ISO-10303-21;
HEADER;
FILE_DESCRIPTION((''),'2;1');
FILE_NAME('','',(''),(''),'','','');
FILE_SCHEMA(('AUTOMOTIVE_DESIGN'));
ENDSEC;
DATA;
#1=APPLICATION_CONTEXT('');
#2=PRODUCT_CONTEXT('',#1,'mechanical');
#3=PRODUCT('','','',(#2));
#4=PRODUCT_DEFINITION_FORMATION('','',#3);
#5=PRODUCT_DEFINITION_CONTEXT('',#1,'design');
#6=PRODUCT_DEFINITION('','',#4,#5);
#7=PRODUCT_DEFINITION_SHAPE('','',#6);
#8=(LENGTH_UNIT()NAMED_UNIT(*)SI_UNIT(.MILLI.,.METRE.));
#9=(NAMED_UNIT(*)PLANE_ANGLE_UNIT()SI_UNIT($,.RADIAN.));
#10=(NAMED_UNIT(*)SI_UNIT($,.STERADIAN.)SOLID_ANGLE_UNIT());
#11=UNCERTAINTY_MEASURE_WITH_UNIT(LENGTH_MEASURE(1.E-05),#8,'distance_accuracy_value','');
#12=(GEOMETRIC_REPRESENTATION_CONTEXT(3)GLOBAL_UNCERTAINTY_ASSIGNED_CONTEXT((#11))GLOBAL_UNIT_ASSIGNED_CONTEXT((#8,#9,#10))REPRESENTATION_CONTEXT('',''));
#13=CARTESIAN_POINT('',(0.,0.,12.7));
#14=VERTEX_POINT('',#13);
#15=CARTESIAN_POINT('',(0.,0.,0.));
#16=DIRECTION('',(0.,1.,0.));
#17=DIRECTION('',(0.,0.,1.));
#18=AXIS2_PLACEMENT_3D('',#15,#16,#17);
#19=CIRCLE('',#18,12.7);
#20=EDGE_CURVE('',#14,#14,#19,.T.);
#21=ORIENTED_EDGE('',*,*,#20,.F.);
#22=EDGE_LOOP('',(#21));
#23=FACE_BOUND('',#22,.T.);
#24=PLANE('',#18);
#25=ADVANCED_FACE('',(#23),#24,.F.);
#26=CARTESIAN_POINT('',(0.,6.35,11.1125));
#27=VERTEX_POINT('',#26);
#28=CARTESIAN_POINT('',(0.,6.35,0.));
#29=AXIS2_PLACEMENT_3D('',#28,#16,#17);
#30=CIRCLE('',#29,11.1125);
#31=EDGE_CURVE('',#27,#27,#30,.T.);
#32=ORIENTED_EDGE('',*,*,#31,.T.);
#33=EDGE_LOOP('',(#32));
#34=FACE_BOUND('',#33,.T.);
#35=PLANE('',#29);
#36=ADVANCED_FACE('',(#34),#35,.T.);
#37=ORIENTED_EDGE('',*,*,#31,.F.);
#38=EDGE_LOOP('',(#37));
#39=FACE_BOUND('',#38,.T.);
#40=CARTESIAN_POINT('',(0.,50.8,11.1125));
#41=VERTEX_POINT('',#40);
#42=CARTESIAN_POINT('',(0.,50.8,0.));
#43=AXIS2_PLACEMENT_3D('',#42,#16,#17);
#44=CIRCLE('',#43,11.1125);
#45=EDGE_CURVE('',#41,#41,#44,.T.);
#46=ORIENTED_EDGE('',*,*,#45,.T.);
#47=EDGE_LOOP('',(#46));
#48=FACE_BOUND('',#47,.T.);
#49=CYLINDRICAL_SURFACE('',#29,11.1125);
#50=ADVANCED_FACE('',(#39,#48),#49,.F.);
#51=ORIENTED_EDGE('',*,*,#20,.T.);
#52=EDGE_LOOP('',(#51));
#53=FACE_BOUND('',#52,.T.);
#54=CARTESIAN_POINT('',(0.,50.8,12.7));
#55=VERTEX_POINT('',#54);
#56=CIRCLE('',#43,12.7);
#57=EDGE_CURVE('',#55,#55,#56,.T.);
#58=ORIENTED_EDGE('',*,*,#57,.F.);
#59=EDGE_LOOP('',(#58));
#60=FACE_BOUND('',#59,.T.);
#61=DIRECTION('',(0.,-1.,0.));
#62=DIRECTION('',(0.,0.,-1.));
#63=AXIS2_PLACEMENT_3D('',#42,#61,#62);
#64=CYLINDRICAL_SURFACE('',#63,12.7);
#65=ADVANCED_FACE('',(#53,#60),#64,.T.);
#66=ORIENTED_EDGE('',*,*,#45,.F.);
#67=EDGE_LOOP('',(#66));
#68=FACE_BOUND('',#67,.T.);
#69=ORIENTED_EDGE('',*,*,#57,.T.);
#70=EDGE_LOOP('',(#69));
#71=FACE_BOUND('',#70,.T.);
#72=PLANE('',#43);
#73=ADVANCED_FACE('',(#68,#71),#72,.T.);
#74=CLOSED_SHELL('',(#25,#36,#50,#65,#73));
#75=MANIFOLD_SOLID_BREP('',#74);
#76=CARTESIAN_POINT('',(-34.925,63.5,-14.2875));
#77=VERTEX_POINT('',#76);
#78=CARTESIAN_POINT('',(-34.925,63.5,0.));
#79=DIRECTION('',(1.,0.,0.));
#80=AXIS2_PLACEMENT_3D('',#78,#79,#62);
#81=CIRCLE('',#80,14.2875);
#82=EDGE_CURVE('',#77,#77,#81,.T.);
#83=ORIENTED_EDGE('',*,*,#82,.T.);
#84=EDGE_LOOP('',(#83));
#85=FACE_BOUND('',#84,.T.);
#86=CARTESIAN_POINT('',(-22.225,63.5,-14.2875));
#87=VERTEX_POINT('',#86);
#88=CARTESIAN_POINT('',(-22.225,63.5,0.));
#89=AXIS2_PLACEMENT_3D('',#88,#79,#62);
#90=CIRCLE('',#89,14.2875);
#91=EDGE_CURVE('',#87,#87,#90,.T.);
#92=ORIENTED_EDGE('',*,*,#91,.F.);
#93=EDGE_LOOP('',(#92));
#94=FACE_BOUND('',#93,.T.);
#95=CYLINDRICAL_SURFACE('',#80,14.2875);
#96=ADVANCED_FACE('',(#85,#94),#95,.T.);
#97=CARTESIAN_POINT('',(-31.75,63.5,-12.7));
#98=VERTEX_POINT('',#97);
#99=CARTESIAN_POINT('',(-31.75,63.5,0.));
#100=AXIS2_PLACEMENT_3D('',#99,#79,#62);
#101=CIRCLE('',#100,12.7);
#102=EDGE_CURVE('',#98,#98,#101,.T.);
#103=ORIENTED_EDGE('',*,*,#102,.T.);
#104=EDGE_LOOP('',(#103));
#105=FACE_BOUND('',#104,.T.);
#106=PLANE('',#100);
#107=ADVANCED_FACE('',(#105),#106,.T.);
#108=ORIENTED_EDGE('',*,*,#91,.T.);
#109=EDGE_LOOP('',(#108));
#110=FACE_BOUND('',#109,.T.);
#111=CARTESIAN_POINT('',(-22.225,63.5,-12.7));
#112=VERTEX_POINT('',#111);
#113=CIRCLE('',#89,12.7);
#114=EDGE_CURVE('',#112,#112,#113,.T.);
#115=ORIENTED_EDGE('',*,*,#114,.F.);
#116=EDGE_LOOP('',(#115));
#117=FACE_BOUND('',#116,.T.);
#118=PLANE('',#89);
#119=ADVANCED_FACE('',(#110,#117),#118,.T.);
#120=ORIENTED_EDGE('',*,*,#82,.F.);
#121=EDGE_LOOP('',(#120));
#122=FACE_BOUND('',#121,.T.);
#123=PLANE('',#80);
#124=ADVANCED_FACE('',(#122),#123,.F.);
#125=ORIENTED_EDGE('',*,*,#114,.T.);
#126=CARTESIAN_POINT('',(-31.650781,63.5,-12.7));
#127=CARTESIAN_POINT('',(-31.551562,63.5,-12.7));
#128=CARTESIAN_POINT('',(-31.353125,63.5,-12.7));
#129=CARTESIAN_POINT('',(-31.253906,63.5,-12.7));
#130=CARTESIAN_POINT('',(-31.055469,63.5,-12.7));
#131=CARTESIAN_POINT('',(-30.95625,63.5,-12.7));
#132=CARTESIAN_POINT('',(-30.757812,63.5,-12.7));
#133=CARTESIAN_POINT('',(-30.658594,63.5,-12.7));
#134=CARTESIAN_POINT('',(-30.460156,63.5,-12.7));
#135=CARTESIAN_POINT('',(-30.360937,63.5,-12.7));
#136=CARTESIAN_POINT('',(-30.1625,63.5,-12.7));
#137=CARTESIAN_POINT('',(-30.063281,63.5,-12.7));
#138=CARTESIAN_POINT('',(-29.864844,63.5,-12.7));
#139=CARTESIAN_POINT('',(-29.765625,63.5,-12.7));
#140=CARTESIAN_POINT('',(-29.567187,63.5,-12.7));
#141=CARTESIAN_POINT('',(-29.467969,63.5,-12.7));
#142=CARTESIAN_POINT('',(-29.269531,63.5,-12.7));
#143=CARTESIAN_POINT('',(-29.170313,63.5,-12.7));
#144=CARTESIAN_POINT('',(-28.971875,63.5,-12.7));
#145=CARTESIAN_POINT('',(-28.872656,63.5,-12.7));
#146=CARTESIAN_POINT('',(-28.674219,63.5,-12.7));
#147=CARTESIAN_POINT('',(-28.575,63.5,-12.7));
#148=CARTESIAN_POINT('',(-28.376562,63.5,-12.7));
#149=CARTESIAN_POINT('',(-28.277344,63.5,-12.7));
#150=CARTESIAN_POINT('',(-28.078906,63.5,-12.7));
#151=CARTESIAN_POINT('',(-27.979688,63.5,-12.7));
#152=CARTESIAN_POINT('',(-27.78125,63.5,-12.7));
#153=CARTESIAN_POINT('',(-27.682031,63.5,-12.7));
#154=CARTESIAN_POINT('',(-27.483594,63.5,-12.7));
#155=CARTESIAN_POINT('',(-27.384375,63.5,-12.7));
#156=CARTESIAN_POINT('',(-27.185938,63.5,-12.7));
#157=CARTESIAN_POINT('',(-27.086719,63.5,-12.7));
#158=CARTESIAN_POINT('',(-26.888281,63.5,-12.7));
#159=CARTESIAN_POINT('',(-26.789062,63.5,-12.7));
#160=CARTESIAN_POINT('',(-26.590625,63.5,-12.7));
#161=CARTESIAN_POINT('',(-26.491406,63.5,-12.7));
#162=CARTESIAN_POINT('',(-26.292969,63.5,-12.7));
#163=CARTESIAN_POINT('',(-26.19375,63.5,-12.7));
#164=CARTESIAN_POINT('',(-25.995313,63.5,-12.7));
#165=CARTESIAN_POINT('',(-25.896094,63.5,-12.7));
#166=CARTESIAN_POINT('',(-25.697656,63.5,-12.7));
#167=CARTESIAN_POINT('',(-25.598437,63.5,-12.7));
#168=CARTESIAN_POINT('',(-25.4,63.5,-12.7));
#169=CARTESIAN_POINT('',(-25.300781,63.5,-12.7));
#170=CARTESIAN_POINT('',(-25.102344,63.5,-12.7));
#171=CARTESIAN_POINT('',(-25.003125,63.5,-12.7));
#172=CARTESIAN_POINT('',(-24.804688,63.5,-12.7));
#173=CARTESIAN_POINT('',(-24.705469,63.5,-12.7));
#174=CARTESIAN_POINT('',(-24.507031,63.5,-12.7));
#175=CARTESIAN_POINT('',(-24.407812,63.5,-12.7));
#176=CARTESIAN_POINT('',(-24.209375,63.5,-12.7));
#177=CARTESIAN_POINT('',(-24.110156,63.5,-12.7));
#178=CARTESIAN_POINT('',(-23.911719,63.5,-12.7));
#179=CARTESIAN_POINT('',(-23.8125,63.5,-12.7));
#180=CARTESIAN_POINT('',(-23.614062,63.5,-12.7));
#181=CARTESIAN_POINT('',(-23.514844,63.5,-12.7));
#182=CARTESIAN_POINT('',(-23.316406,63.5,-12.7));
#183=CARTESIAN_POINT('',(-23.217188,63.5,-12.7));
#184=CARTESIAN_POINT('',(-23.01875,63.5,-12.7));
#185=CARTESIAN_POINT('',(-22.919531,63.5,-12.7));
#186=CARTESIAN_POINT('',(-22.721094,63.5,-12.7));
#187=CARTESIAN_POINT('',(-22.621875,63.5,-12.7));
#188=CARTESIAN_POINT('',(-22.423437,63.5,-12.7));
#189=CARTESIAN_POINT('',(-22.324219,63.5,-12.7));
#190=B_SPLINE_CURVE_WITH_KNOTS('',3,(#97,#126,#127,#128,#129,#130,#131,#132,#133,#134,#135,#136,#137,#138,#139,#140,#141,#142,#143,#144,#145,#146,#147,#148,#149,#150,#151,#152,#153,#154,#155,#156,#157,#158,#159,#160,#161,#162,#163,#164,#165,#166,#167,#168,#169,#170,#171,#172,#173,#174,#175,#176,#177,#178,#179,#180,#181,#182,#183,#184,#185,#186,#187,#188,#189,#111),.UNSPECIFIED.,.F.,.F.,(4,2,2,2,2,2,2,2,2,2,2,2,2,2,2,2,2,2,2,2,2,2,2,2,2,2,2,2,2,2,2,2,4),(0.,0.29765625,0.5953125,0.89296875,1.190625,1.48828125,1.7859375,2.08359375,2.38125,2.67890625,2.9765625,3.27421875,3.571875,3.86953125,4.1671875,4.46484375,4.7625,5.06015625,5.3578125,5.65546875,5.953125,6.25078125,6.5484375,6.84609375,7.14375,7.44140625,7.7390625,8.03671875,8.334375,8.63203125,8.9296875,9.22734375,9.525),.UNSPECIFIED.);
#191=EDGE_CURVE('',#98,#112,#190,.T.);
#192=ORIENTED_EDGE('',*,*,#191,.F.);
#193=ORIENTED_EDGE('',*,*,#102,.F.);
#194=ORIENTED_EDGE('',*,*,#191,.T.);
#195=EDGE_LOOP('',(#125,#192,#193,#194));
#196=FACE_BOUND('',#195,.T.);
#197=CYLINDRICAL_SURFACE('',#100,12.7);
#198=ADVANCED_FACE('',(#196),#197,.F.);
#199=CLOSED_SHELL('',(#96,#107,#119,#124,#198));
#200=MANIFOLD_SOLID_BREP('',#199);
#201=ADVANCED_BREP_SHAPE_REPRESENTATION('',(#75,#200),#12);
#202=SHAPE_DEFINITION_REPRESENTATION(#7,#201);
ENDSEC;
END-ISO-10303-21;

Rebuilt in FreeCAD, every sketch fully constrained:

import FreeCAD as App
import Part
import Sketcher
Q = App.Units.Quantity

doc = App.newDocument("Part")
body = doc.addObject("PartDesign::Body", "Body")

# Sketch on XZ plane
sketch1 = body.newObject("Sketcher::SketchObject", "Sketch")
sketch1.AttachmentSupport = (doc.getObject("XZ_Plane"), [""])
sketch1.MapMode = "FlatFace"
sketch1.addGeometry(Part.Circle(App.Vector(0, 0, 0), App.Vector(0, 0, 1), 13), False)
sketch1.addConstraint([
    Sketcher.Constraint("Coincident", 0, 3, -1, 1),
    Sketcher.Constraint("Diameter", 0, Q("1 in")),
])
pad1 = body.newObject("PartDesign::Pad", "Pad")
pad1.Profile = sketch1
pad1.Length = Q("2 in")
pad1.Reversed = True

# Sketch on XZ plane
sketch2 = body.newObject("Sketcher::SketchObject", "Sketch001")
sketch2.AttachmentSupport = (doc.getObject("XZ_Plane"), [""])
sketch2.MapMode = "FlatFace"
sketch2.AttachmentOffset = App.Placement(App.Vector(0, 0, -2 * 25.4), App.Rotation())
sketch2.addGeometry(Part.Circle(App.Vector(0, 0, 0), App.Vector(0, 0, 1), 11), False)
sketch2.addConstraint([
    Sketcher.Constraint("Coincident", 0, 3, -1, 1),
    Sketcher.Constraint("Diameter", 0, Q("0.875 in")),
])
pocket1 = body.newObject("PartDesign::Pocket", "Pocket")
pocket1.Profile = sketch2
pocket1.Length = Q("1.75 in")
pocket1.Reversed = True
body2 = doc.addObject("PartDesign::Body", "Body001")

# Sketch on YZ plane
sketch3 = body2.newObject("Sketcher::SketchObject", "Sketch002")
sketch3.AttachmentSupport = (doc.getObject("YZ_Plane001"), [""])
sketch3.MapMode = "FlatFace"
sketch3.AttachmentOffset = App.Placement(App.Vector(0, 0, -0.875 * 25.4), App.Rotation())
sketch3.addGeometry(Part.Circle(App.Vector(64, 0, 0), App.Vector(0, 0, 1), 14), False)
sketch3.addConstraint([
    Sketcher.Constraint("PointOnObject", 0, 3, -1),
    Sketcher.Constraint("Diameter", 0, Q("1.125 in")),
    Sketcher.Constraint("DistanceX", -1, 1, 0, 3, Q("2.5 in")),
])
pad2 = body2.newObject("PartDesign::Pad", "Pad001")
pad2.Profile = sketch3
pad2.Length = Q("0.5 in")
pad2.Reversed = True

# Sketch on YZ plane
sketch4 = body2.newObject("Sketcher::SketchObject", "Sketch003")
sketch4.AttachmentSupport = (doc.getObject("YZ_Plane001"), [""])
sketch4.MapMode = "FlatFace"
sketch4.AttachmentOffset = App.Placement(App.Vector(0, 0, -0.875 * 25.4), App.Rotation())
sketch4.addGeometry(Part.Circle(App.Vector(64, 0, 0), App.Vector(0, 0, 1), 13), False)
sketch4.addConstraint([
    Sketcher.Constraint("PointOnObject", 0, 3, -1),
    Sketcher.Constraint("Diameter", 0, Q("1 in")),
    Sketcher.Constraint("DistanceX", -1, 1, 0, 3, Q("2.5 in")),
])
pocket2 = body2.newObject("PartDesign::Pocket", "Pocket001")
pocket2.Profile = sketch4
pocket2.Length = Q("0.375 in")

doc.recompute()
